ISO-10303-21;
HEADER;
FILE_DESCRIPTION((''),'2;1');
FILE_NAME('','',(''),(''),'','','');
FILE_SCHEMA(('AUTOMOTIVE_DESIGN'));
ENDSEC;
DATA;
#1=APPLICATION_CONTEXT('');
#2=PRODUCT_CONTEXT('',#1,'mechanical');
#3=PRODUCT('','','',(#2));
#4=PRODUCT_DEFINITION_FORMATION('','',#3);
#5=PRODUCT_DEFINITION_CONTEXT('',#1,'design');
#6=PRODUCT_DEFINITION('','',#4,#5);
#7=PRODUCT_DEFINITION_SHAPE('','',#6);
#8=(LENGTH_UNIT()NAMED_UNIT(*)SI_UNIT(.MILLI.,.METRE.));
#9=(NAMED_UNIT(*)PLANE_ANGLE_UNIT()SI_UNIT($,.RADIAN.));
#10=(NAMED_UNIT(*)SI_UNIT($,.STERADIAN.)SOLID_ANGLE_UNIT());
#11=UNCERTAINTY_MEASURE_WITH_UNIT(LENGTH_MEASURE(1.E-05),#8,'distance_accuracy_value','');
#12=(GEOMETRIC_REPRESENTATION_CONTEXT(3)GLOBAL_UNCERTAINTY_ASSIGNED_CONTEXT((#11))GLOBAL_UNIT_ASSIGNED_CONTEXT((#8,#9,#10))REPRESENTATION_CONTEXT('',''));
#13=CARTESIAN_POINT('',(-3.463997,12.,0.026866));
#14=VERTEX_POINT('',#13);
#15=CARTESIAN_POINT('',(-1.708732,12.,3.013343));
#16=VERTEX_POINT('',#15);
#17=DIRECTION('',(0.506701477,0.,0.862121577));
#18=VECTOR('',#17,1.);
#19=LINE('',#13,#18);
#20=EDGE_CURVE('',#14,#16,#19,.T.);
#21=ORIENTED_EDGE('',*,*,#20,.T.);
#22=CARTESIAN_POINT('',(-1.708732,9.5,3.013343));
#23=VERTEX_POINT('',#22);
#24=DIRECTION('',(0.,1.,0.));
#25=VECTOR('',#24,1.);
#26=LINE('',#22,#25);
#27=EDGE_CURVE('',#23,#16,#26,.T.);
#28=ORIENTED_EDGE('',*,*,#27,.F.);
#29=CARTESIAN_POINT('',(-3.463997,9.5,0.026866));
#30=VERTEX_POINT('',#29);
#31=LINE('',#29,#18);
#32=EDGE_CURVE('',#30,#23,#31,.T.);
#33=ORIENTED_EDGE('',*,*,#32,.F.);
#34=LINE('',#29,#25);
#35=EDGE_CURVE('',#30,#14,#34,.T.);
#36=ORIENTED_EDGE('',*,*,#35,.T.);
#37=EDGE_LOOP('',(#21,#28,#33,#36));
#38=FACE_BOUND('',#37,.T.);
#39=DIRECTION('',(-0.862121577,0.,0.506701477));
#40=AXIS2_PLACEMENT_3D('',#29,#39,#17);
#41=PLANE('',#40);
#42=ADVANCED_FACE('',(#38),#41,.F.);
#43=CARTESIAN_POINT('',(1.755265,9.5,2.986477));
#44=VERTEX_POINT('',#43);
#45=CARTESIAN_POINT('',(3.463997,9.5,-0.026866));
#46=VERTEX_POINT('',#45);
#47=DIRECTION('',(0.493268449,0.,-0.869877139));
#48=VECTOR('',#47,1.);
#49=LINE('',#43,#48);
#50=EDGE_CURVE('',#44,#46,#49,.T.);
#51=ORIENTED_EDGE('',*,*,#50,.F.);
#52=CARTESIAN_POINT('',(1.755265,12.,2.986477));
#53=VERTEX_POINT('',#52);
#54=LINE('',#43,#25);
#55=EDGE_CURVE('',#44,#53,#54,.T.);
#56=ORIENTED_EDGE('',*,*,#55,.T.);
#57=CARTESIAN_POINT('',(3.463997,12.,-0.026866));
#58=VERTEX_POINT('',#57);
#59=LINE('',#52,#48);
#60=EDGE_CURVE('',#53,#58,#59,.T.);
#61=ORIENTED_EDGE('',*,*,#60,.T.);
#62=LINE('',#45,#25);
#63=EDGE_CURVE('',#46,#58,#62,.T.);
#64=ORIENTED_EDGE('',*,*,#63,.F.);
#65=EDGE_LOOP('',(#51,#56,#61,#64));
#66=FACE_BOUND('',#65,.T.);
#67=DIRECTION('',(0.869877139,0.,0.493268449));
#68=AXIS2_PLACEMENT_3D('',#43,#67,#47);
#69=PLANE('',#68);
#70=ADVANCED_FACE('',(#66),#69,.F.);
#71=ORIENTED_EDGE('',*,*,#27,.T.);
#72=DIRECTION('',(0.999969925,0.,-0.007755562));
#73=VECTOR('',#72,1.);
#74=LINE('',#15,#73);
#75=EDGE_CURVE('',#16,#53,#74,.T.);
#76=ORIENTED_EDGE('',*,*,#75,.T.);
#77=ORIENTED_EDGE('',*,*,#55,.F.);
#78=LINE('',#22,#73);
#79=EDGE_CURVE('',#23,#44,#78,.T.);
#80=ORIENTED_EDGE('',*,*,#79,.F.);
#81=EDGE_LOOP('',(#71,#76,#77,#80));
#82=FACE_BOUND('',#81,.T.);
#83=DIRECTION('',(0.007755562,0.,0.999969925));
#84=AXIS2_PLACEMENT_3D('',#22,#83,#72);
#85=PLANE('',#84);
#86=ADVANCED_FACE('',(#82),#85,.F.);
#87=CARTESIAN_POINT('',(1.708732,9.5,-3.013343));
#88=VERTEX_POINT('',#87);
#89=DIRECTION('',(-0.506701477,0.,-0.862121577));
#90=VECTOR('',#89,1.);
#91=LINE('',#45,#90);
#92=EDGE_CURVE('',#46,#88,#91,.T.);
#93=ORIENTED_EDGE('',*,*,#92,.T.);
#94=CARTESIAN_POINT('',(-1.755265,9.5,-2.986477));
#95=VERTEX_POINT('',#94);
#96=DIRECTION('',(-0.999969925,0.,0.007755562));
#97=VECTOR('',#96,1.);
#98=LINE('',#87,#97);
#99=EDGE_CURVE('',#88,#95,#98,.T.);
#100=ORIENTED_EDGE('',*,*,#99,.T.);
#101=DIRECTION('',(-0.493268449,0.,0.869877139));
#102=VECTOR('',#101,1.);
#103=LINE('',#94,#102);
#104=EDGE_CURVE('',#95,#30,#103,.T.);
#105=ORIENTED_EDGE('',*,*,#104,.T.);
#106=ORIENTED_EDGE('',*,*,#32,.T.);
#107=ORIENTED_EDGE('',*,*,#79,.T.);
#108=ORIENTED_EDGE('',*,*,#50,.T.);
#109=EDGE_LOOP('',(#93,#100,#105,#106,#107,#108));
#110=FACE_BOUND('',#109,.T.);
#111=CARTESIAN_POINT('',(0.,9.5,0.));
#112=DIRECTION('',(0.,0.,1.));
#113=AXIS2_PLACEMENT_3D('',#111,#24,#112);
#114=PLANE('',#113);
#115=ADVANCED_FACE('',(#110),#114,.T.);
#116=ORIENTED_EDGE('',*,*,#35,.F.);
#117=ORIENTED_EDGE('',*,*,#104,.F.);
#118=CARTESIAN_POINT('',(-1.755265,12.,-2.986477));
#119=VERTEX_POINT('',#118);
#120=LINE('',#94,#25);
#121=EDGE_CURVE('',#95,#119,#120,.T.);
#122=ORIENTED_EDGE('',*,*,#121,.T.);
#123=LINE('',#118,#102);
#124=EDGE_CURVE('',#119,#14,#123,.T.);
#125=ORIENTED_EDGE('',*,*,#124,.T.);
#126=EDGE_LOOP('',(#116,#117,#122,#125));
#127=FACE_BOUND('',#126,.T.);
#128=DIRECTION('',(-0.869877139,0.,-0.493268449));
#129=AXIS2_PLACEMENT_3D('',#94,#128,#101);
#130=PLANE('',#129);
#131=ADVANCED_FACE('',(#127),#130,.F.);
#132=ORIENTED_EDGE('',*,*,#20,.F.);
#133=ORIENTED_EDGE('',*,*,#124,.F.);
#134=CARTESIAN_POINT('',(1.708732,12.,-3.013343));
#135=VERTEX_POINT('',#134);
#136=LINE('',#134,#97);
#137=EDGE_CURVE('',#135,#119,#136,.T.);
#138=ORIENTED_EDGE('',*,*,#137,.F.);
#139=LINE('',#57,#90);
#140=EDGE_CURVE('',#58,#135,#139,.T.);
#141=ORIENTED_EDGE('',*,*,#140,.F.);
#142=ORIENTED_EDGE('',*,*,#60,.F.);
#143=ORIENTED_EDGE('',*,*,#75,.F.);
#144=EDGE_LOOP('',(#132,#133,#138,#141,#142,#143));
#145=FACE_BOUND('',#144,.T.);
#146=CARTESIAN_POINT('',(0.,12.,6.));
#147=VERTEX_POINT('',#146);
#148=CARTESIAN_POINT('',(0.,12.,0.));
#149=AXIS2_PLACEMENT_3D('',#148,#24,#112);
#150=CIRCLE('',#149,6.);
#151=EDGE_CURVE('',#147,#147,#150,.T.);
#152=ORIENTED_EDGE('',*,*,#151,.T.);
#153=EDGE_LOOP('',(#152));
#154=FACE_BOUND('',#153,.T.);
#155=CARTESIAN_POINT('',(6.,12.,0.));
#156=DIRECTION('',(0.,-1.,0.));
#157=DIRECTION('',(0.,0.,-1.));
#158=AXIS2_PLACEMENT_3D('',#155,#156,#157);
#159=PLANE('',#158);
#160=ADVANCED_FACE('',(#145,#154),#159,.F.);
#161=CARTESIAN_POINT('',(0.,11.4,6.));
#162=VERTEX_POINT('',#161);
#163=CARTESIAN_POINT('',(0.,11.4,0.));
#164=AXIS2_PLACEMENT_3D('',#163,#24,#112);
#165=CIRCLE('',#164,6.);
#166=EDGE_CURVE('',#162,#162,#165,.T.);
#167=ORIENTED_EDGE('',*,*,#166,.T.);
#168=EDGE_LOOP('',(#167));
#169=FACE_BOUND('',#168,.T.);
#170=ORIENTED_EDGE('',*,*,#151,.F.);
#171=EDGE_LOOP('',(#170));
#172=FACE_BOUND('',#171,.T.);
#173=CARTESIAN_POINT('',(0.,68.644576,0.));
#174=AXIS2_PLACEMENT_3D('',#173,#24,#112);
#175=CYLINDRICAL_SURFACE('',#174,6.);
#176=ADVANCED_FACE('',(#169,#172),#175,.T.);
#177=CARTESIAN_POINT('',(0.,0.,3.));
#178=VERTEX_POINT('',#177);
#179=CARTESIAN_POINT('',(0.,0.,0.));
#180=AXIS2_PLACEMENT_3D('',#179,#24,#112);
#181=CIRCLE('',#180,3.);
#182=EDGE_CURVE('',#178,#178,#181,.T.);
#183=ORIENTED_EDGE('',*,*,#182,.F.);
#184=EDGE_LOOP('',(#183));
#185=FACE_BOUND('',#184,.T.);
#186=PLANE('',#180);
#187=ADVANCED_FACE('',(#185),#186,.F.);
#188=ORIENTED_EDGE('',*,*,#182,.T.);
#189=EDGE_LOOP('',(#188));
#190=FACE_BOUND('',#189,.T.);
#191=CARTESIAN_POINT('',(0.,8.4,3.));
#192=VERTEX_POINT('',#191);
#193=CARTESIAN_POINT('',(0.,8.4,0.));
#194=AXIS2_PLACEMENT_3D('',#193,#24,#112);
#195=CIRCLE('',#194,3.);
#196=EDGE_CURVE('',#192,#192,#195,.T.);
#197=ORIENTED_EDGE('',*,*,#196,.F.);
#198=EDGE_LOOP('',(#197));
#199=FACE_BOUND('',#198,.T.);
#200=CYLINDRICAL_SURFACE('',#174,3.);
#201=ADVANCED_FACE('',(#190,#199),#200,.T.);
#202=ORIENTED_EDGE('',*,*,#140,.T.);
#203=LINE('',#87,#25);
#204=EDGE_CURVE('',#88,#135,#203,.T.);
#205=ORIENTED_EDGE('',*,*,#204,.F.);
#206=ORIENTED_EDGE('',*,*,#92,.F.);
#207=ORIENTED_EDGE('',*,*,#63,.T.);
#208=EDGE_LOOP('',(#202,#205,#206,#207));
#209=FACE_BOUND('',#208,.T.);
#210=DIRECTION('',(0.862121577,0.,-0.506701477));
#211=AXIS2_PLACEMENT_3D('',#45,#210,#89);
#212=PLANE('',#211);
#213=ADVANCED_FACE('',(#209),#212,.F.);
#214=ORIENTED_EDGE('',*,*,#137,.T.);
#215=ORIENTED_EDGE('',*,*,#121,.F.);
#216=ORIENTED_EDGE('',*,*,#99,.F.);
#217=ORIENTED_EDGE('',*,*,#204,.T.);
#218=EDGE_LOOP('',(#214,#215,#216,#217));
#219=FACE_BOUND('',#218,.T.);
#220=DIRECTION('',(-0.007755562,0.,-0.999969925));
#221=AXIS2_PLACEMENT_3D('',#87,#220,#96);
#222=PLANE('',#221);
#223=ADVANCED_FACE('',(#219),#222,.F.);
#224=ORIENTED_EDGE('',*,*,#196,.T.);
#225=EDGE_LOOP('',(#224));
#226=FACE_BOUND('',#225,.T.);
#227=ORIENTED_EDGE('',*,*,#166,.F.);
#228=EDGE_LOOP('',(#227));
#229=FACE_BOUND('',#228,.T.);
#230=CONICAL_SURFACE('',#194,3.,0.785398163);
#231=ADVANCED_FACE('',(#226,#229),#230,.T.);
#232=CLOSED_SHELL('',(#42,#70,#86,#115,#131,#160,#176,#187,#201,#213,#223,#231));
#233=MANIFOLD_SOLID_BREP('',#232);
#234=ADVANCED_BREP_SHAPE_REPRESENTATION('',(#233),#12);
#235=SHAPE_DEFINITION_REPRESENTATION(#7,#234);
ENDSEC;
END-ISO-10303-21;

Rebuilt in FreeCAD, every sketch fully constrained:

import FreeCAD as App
import Part
import Sketcher
Q = App.Units.Quantity


def add_polygon(sketch, points):
    """Adds a closed chain of lines whose ends are joined by coincident constraints."""
    first, n = sketch.GeometryCount, len(points)
    for a, b in zip(points, points[1:] + points[:1]):
        sketch.addGeometry(Part.LineSegment(App.Vector(*a, 0), App.Vector(*b, 0)), False)
    for i in range(n):
        sketch.addConstraint(Sketcher.Constraint("Coincident", first + i, 2, first + (i + 1) % n, 1))

doc = App.newDocument("Part")
body = doc.addObject("PartDesign::Body", "Body")

# Sketch on XY plane
sketch1 = body.newObject("Sketcher::SketchObject", "Sketch")
sketch1.AttachmentSupport = (doc.getObject("XY_Plane"), [""])
sketch1.MapMode = "FlatFace"
add_polygon(sketch1, [(0, 0), (3, 0), (3, 8.4), (6, 11.4), (6, 12), (0, 12)])  # lines 0-5
sketch1.addConstraint([
    Sketcher.Constraint("Horizontal", 0),
    Sketcher.Constraint("Vertical", 1),
    Sketcher.Constraint("Vertical", 3),
    Sketcher.Constraint("Horizontal", 4),
    Sketcher.Constraint("Vertical", 5),
    Sketcher.Constraint("Coincident", 5, 2, -1, 1),
    Sketcher.Constraint("DistanceX", 0, 1, 0, 2, Q("3 mm")),
    Sketcher.Constraint("DistanceX", 4, 2, 4, 1, Q("6 mm")),
    Sketcher.Constraint("DistanceY", 5, 2, 5, 1, Q("12 mm")),
    Sketcher.Constraint("Angle", 2, Q("45 deg")),
    Sketcher.Constraint("DistanceY", 1, 1, 1, 2, Q("8.4 mm")),
])
revolution = body.newObject("PartDesign::Revolution", "Revolution")
revolution.Profile = sketch1
revolution.ReferenceAxis = (sketch1, ["V_Axis"])
revolution.Angle = 360

# Sketch on XZ plane
sketch2 = body.newObject("Sketcher::SketchObject", "Sketch001")
sketch2.AttachmentSupport = (doc.getObject("XZ_Plane"), [""])
sketch2.MapMode = "FlatFace"
sketch2.AttachmentOffset = App.Placement(App.Vector(0, 0, -12), App.Rotation())
add_polygon(sketch2, [(1.755265, 2.986477), (3.463997, -0.026866), (1.708732, -3.013343), (-1.755265, -2.986477), (-3.463997, 0.026866), (-1.708732, 3.013343)])  # lines 0-5
sketch2.addConstraint([
    Sketcher.Constraint("Symmetric", 0, 2, 3, 2, -1, 1),
    Sketcher.Constraint("Symmetric", 1, 2, 4, 2, -1, 1),
    Sketcher.Constraint("Symmetric", 2, 2, 5, 2, -1, 1),
    Sketcher.Constraint("Equal", 0, 1),
    Sketcher.Constraint("Equal", 1, 2),
    Sketcher.Constraint("Distance", 0, Q("3.464102 mm")),
    Sketcher.Constraint("DistanceY", 2, 2, 0, 2, Q("2.959611 mm")),
    Sketcher.Constraint("DistanceX", 3, 2, 1, 2, Q("5.172729 mm")),
    Sketcher.Constraint("DistanceY", 1, 2, 3, 2, Q("3.040209 mm")),
])
pocket1 = body.newObject("PartDesign::Pocket", "Pocket")
pocket1.Profile = sketch2
pocket1.Length = 2.5
pocket1.Reversed = True

doc.recompute()
